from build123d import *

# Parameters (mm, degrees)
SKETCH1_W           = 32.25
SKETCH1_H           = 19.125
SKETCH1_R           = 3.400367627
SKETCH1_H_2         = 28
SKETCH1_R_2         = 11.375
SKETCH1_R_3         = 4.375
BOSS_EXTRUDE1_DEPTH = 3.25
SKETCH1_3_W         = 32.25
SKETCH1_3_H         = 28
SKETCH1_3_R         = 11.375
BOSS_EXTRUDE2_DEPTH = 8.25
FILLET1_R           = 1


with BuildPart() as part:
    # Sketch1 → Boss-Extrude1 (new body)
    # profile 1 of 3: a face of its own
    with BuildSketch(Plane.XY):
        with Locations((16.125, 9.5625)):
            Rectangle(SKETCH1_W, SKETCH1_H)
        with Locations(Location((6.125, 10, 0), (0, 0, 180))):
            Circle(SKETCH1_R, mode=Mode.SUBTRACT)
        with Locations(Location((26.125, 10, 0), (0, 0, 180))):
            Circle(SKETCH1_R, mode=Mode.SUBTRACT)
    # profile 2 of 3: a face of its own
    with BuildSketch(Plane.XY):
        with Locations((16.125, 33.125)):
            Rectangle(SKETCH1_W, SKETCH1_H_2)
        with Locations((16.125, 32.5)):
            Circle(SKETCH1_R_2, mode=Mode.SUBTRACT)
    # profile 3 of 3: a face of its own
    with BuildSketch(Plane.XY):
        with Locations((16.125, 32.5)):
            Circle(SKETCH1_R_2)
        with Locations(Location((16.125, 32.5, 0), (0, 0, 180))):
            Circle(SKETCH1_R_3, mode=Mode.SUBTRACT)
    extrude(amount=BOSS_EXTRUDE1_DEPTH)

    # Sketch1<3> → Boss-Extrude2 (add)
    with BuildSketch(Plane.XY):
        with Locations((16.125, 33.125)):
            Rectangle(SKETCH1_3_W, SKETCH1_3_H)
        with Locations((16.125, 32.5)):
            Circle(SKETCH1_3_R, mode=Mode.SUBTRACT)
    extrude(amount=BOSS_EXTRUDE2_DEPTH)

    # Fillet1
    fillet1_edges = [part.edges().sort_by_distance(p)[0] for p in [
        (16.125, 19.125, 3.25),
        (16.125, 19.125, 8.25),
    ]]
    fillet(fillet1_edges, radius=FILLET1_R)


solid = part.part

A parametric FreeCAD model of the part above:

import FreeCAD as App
import Part
import Sketcher


def edges_at(feature, points):
    """Names of the edges that pass closest to the given points."""
    edges = feature.Shape.Edges
    near = lambda p: min(range(len(edges)), key=lambda i: edges[i].distToShape(Part.Vertex(*p))[0])
    return sorted({f"Edge{near(p) + 1}" for p in points})

doc = App.newDocument("Part")
body = doc.addObject("PartDesign::Body", "Body")

sketch1 = doc.addObject("Sketcher::SketchObject", "Sketch")
body.addObject(sketch1)
sketch1.AttachmentSupport = (doc.XY_Plane, [""])
sketch1.MapMode = "FlatFace"
sketch1.addGeometry([
    Part.LineSegment(App.Vector(0, 0, 0), App.Vector(32.2, 0, 0)),
    Part.LineSegment(App.Vector(32.2, 0, 0), App.Vector(32.2, 47.1, 0)),
    Part.LineSegment(App.Vector(32.2, 47.1, 0), App.Vector(0, 47.1, 0)),
    Part.LineSegment(App.Vector(0, 47.1, 0), App.Vector(0, 0, 0)),
    Part.Circle(App.Vector(6.1, 10, 0), App.Vector(0, 0, 1), 3.4),
    Part.Circle(App.Vector(26.1, 10, 0), App.Vector(0, 0, 1), 3.4),
    Part.Circle(App.Vector(16.1, 32.5, 0), App.Vector(0, 0, 1), 4.4),
], False)
sketch1.addConstraint([
    Sketcher.Constraint("Coincident", 0, 2, 1, 1),
    Sketcher.Constraint("Coincident", 1, 2, 2, 1),
    Sketcher.Constraint("Coincident", 2, 2, 3, 1),
    Sketcher.Constraint("Coincident", 3, 2, 0, 1),
    Sketcher.Constraint("Horizontal", 0),
    Sketcher.Constraint("Vertical", 1),
    Sketcher.Constraint("Horizontal", 2),
    Sketcher.Constraint("Vertical", 3),
    Sketcher.Constraint("Coincident", 3, 2, -1, 1),
    Sketcher.Constraint("Equal", 4, 5),
    Sketcher.Constraint("Horizontal", 4, 3, 5, 3),
    Sketcher.Constraint("Diameter", 6, 8.75),
    Sketcher.Constraint("DistanceY", -1, 1, 4, 3, 10.0),
    Sketcher.Constraint("DistanceX", 4, 3, 5, 3, 20.0),
    Sketcher.Constraint("DistanceX", 4, 3, 6, 3, 10.0),
    Sketcher.Constraint("DistanceX", 0, 1, 0, 2, 32.25),
    Sketcher.Constraint("DistanceY", -1, 1, 6, 3, 32.5),
    Sketcher.Constraint("DistanceY", 1, 1, 1, 2, 47.125),
    Sketcher.Constraint("Diameter", 4, 6.800735),
    Sketcher.Constraint("DistanceX", -1, 1, 4, 3, 6.125),
])
pad1 = doc.addObject("PartDesign::Pad", "Pad")
body.addObject(pad1)
pad1.Profile = sketch1
pad1.Length = 3.25

sketch2 = doc.addObject("Sketcher::SketchObject", "Sketch001")
body.addObject(sketch2)
sketch2.AttachmentSupport = (doc.XY_Plane, [""])
sketch2.MapMode = "FlatFace"
sketch2.addGeometry([
    Part.LineSegment(App.Vector(0, 47, 0), App.Vector(0, 19, 0)),
    Part.LineSegment(App.Vector(0, 19, 0), App.Vector(32, 19, 0)),
    Part.LineSegment(App.Vector(32, 19, 0), App.Vector(32, 47, 0)),
    Part.LineSegment(App.Vector(32, 47, 0), App.Vector(0, 47, 0)),
    Part.Circle(App.Vector(16, 32, 0), App.Vector(0, 0, 1), 11),
], False)
sketch2.addConstraint([
    Sketcher.Constraint("Coincident", 0, 2, 1, 1),
    Sketcher.Constraint("Coincident", 1, 2, 2, 1),
    Sketcher.Constraint("Coincident", 2, 2, 3, 1),
    Sketcher.Constraint("Coincident", 3, 2, 0, 1),
    Sketcher.Constraint("Vertical", 0),
    Sketcher.Constraint("Horizontal", 1),
    Sketcher.Constraint("Vertical", 2),
    Sketcher.Constraint("Horizontal", 3),
    Sketcher.Constraint("PointOnObject", 0, 2, -2),
    Sketcher.Constraint("Diameter", 4, 22.75),
    Sketcher.Constraint("DistanceY", 0, 2, 0, 1, 28.0),
    Sketcher.Constraint("DistanceX", 1, 1, 1, 2, 32.25),
    Sketcher.Constraint("DistanceY", -1, 1, 4, 3, 32.5),
    Sketcher.Constraint("DistanceX", -1, 1, 4, 3, 16.125),
    Sketcher.Constraint("DistanceY", -1, 1, 0, 2, 19.125),
])
pad2 = doc.addObject("PartDesign::Pad", "Pad001")
body.addObject(pad2)
pad2.Profile = sketch2
pad2.Length = 8.25
doc.recompute()

fillet = doc.addObject("PartDesign::Fillet", "Fillet")
body.addObject(fillet)
fillet.Base = (pad2, edges_at(pad2, [(16.125, 19.125, 3.25), (16.125, 19.125, 8.25)]))
fillet.Radius = 1

doc.recompute()
